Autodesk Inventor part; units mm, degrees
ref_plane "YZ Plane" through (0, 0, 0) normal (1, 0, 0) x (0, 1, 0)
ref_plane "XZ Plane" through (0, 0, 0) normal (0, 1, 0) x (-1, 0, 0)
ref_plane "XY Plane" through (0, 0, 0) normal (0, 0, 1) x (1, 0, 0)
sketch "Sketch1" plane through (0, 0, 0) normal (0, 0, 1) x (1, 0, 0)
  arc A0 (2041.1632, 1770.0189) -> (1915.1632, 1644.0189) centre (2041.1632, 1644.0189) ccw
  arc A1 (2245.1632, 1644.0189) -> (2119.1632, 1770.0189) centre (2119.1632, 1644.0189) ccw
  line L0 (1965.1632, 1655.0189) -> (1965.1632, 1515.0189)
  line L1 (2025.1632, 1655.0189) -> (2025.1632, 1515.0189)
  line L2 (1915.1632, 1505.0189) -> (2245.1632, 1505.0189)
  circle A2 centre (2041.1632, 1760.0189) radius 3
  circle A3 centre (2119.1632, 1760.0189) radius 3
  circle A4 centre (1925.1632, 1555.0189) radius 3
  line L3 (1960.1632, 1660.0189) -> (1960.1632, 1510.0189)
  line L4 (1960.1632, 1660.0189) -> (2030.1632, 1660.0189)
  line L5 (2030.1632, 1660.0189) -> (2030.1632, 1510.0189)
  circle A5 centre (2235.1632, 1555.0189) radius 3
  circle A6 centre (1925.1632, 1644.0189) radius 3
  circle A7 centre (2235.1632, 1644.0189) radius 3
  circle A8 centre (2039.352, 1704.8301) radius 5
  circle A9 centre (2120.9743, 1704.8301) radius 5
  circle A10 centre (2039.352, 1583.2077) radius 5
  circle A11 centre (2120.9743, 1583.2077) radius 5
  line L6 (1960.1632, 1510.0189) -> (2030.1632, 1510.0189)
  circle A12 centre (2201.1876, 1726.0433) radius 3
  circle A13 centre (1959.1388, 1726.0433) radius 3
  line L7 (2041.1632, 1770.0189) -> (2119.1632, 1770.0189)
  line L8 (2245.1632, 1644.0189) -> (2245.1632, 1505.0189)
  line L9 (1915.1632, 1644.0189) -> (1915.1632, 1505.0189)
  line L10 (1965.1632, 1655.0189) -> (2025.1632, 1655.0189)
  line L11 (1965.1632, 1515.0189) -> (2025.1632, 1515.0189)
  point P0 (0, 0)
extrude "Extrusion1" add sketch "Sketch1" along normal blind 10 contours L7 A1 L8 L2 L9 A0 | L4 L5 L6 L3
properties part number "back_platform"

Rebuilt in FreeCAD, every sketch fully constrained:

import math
import FreeCAD as App
import Part
import Sketcher
from FreeCAD import Vector
Q = App.Units.Quantity


def add_polygon(sketch, points):
    """Adds a closed chain of lines whose ends are joined by coincident constraints."""
    first, n = sketch.GeometryCount, len(points)
    for a, b in zip(points, points[1:] + points[:1]):
        sketch.addGeometry(Part.LineSegment(App.Vector(*a, 0), App.Vector(*b, 0)), False)
    for i in range(n):
        sketch.addConstraint(Sketcher.Constraint("Coincident", first + i, 2, first + (i + 1) % n, 1))

doc = App.newDocument("Part")
body = doc.addObject("PartDesign::Body", "Body")

sketch1 = body.newObject("Sketcher::SketchObject", "Sketch")
sketch1.AttachmentSupport = (doc.getObject("XY_Plane"), [""])
sketch1.MapMode = "FlatFace"
sketch1.addGeometry(Part.LineSegment(Vector(2119.2, 1770, 0), Vector(2041.2, 1770, 0)), False)
sketch1.addGeometry(Part.ArcOfCircle(Part.Circle(Vector(2041.2, 1644, 0), Vector(0, 0, 1), 126), math.radians(90), math.radians(180)), False)
sketch1.addGeometry(Part.LineSegment(Vector(1915.2, 1644, 0), Vector(1915.2, 1505, 0)), False)
sketch1.addGeometry(Part.LineSegment(Vector(1915.2, 1505, 0), Vector(2245.2, 1505, 0)), False)
sketch1.addGeometry(Part.LineSegment(Vector(2245.2, 1505, 0), Vector(2245.2, 1644, 0)), False)
sketch1.addGeometry(Part.ArcOfCircle(Part.Circle(Vector(2119.2, 1644, 0), Vector(0, 0, 1), 126), math.radians(0), math.radians(90)), False)
sketch1.addGeometry(Part.Circle(Vector(1925.2, 1555, 0), Vector(0, 0, 1), 3), False)
sketch1.addGeometry(Part.Circle(Vector(2039.4, 1583.2, 0), Vector(0, 0, 1), 5), False)
sketch1.addGeometry(Part.Circle(Vector(2235.2, 1555, 0), Vector(0, 0, 1), 3), False)
sketch1.addGeometry(Part.Circle(Vector(2121, 1583.2, 0), Vector(0, 0, 1), 5), False)
sketch1.addGeometry(Part.Circle(Vector(1925.2, 1644, 0), Vector(0, 0, 1), 3), False)
sketch1.addGeometry(Part.Circle(Vector(1959.1, 1726, 0), Vector(0, 0, 1), 3), False)
sketch1.addGeometry(Part.Circle(Vector(2039.4, 1704.8, 0), Vector(0, 0, 1), 5), False)
sketch1.addGeometry(Part.Circle(Vector(2041.2, 1760, 0), Vector(0, 0, 1), 3), False)
sketch1.addGeometry(Part.Circle(Vector(2235.2, 1644, 0), Vector(0, 0, 1), 3), False)
sketch1.addGeometry(Part.Circle(Vector(2121, 1704.8, 0), Vector(0, 0, 1), 5), False)
sketch1.addGeometry(Part.Circle(Vector(2119.2, 1760, 0), Vector(0, 0, 1), 3), False)
sketch1.addGeometry(Part.Circle(Vector(2201.2, 1726, 0), Vector(0, 0, 1), 3), False)
add_polygon(sketch1, [(1965.2, 1515), (1965.2, 1655), (2025.2, 1655), (2025.2, 1515)])
sketch1.addConstraint(Sketcher.Constraint("Tangent", 0, 2, 1, 1))
sketch1.addConstraint(Sketcher.Constraint("Tangent", 1, 2, 2, 1))
sketch1.addConstraint(Sketcher.Constraint("Coincident", 2, 2, 3, 1))
sketch1.addConstraint(Sketcher.Constraint("Coincident", 3, 2, 4, 1))
sketch1.addConstraint(Sketcher.Constraint("Tangent", 4, 2, 5, 1))
sketch1.addConstraint(Sketcher.Constraint("Tangent", 5, 2, 0, 1))
sketch1.addConstraint(Sketcher.Constraint("Horizontal", 0))
sketch1.addConstraint(Sketcher.Constraint("Vertical", 2))
sketch1.addConstraint(Sketcher.Constraint("Horizontal", 3))
sketch1.addConstraint(Sketcher.Constraint("Vertical", 4))
sketch1.addConstraint(Sketcher.Constraint("Vertical", 18))
sketch1.addConstraint(Sketcher.Constraint("Horizontal", 19))
sketch1.addConstraint(Sketcher.Constraint("Vertical", 20))
sketch1.addConstraint(Sketcher.Constraint("Horizontal", 21))
sketch1.addConstraint(Sketcher.Constraint("Equal", 1, 5))
sketch1.addConstraint(Sketcher.Constraint("Equal", 6, 8))
sketch1.addConstraint(Sketcher.Constraint("Equal", 7, 9))
sketch1.addConstraint(Sketcher.Constraint("Equal", 8, 10))
sketch1.addConstraint(Sketcher.Constraint("Equal", 10, 11))
sketch1.addConstraint(Sketcher.Constraint("Equal", 9, 12))
sketch1.addConstraint(Sketcher.Constraint("Equal", 11, 13))
sketch1.addConstraint(Sketcher.Constraint("Equal", 13, 14))
sketch1.addConstraint(Sketcher.Constraint("Equal", 12, 15))
sketch1.addConstraint(Sketcher.Constraint("Equal", 14, 16))
sketch1.addConstraint(Sketcher.Constraint("Equal", 16, 17))
sketch1.addConstraint(Sketcher.Constraint("Horizontal", 6, 3, 8, 3))
sketch1.addConstraint(Sketcher.Constraint("Horizontal", 7, 3, 9, 3))
sketch1.addConstraint(Sketcher.Constraint("Horizontal", 5, 3, 10, 3))
sketch1.addConstraint(Sketcher.Constraint("Horizontal", 10, 3, 14, 3))
sketch1.addConstraint(Sketcher.Constraint("Horizontal", 12, 3, 15, 3))
sketch1.addConstraint(Sketcher.Constraint("Horizontal", 13, 3, 16, 3))
sketch1.addConstraint(Sketcher.Constraint("Horizontal", 11, 3, 17, 3))
sketch1.addConstraint(Sketcher.Constraint("Vertical", 6, 3, 10, 3))
sketch1.addConstraint(Sketcher.Constraint("Vertical", 7, 3, 12, 3))
sketch1.addConstraint(Sketcher.Constraint("Vertical", 1, 3, 13, 3))
sketch1.addConstraint(Sketcher.Constraint("Vertical", 8, 3, 14, 3))
sketch1.addConstraint(Sketcher.Constraint("Vertical", 9, 3, 15, 3))
sketch1.addConstraint(Sketcher.Constraint("Vertical", 5, 3, 16, 3))
sketch1.addConstraint(Sketcher.Constraint("Diameter", 6, Q("6 mm")))
sketch1.addConstraint(Sketcher.Constraint("Diameter", 7, Q("10 mm")))
sketch1.addConstraint(Sketcher.Constraint("Radius", 1, Q("126 mm")))
sketch1.addConstraint(Sketcher.Constraint("DistanceX", 0, 2, 0, 1, Q("78 mm")))
sketch1.addConstraint(Sketcher.Constraint("DistanceX", 19, 1, 19, 2, Q("60 mm")))
sketch1.addConstraint(Sketcher.Constraint("DistanceY", 2, 2, 2, 1, Q("139 mm")))
sketch1.addConstraint(Sketcher.Constraint("DistanceY", 18, 1, 18, 2, Q("140 mm")))
sketch1.addConstraint(Sketcher.Constraint("DistanceX", 6, 3, 1, 3, Q("116 mm")))
sketch1.addConstraint(Sketcher.Constraint("DistanceY", 6, 3, 1, 3, Q("89 mm")))
sketch1.addConstraint(Sketcher.Constraint("DistanceX", 5, 3, 8, 3, Q("116 mm")))
sketch1.addConstraint(Sketcher.Constraint("DistanceY", 1, 3, 13, 3, Q("116 mm")))
sketch1.addConstraint(Sketcher.Constraint("DistanceX", 10, 3, 18, 2, Q("40 mm")))
sketch1.addConstraint(Sketcher.Constraint("DistanceY", 10, 3, 18, 2, Q("11 mm")))
sketch1.addConstraint(Sketcher.Constraint("DistanceY", -1, 1, 12, 3, Q("1704.83 mm")))
sketch1.addConstraint(Sketcher.Constraint("DistanceY", -1, 1, 1, 3, Q("1644.019 mm")))
sketch1.addConstraint(Sketcher.Constraint("DistanceX", -1, 1, 7, 3, Q("2039.352 mm")))
sketch1.addConstraint(Sketcher.Constraint("DistanceX", 5, 3, 9, 3, Q("1.811 mm")))
sketch1.addConstraint(Sketcher.Constraint("DistanceX", -1, 1, 1, 3, Q("2041.1632 mm")))
sketch1.addConstraint(Sketcher.Constraint("DistanceY", -1, 1, 7, 3, Q("1583.2077 mm")))
sketch1.addConstraint(Sketcher.Constraint("DistanceX", -1, 1, 11, 3, Q("1959.1388 mm")))
sketch1.addConstraint(Sketcher.Constraint("DistanceY", -1, 1, 11, 3, Q("1726.0433 mm")))
sketch1.addConstraint(Sketcher.Constraint("DistanceX", -1, 1, 17, 3, Q("2201.1876 mm")))
pad1 = body.newObject("PartDesign::Pad", "Pad")
pad1.Profile = sketch1
pad1.Length = 10

doc.recompute()
